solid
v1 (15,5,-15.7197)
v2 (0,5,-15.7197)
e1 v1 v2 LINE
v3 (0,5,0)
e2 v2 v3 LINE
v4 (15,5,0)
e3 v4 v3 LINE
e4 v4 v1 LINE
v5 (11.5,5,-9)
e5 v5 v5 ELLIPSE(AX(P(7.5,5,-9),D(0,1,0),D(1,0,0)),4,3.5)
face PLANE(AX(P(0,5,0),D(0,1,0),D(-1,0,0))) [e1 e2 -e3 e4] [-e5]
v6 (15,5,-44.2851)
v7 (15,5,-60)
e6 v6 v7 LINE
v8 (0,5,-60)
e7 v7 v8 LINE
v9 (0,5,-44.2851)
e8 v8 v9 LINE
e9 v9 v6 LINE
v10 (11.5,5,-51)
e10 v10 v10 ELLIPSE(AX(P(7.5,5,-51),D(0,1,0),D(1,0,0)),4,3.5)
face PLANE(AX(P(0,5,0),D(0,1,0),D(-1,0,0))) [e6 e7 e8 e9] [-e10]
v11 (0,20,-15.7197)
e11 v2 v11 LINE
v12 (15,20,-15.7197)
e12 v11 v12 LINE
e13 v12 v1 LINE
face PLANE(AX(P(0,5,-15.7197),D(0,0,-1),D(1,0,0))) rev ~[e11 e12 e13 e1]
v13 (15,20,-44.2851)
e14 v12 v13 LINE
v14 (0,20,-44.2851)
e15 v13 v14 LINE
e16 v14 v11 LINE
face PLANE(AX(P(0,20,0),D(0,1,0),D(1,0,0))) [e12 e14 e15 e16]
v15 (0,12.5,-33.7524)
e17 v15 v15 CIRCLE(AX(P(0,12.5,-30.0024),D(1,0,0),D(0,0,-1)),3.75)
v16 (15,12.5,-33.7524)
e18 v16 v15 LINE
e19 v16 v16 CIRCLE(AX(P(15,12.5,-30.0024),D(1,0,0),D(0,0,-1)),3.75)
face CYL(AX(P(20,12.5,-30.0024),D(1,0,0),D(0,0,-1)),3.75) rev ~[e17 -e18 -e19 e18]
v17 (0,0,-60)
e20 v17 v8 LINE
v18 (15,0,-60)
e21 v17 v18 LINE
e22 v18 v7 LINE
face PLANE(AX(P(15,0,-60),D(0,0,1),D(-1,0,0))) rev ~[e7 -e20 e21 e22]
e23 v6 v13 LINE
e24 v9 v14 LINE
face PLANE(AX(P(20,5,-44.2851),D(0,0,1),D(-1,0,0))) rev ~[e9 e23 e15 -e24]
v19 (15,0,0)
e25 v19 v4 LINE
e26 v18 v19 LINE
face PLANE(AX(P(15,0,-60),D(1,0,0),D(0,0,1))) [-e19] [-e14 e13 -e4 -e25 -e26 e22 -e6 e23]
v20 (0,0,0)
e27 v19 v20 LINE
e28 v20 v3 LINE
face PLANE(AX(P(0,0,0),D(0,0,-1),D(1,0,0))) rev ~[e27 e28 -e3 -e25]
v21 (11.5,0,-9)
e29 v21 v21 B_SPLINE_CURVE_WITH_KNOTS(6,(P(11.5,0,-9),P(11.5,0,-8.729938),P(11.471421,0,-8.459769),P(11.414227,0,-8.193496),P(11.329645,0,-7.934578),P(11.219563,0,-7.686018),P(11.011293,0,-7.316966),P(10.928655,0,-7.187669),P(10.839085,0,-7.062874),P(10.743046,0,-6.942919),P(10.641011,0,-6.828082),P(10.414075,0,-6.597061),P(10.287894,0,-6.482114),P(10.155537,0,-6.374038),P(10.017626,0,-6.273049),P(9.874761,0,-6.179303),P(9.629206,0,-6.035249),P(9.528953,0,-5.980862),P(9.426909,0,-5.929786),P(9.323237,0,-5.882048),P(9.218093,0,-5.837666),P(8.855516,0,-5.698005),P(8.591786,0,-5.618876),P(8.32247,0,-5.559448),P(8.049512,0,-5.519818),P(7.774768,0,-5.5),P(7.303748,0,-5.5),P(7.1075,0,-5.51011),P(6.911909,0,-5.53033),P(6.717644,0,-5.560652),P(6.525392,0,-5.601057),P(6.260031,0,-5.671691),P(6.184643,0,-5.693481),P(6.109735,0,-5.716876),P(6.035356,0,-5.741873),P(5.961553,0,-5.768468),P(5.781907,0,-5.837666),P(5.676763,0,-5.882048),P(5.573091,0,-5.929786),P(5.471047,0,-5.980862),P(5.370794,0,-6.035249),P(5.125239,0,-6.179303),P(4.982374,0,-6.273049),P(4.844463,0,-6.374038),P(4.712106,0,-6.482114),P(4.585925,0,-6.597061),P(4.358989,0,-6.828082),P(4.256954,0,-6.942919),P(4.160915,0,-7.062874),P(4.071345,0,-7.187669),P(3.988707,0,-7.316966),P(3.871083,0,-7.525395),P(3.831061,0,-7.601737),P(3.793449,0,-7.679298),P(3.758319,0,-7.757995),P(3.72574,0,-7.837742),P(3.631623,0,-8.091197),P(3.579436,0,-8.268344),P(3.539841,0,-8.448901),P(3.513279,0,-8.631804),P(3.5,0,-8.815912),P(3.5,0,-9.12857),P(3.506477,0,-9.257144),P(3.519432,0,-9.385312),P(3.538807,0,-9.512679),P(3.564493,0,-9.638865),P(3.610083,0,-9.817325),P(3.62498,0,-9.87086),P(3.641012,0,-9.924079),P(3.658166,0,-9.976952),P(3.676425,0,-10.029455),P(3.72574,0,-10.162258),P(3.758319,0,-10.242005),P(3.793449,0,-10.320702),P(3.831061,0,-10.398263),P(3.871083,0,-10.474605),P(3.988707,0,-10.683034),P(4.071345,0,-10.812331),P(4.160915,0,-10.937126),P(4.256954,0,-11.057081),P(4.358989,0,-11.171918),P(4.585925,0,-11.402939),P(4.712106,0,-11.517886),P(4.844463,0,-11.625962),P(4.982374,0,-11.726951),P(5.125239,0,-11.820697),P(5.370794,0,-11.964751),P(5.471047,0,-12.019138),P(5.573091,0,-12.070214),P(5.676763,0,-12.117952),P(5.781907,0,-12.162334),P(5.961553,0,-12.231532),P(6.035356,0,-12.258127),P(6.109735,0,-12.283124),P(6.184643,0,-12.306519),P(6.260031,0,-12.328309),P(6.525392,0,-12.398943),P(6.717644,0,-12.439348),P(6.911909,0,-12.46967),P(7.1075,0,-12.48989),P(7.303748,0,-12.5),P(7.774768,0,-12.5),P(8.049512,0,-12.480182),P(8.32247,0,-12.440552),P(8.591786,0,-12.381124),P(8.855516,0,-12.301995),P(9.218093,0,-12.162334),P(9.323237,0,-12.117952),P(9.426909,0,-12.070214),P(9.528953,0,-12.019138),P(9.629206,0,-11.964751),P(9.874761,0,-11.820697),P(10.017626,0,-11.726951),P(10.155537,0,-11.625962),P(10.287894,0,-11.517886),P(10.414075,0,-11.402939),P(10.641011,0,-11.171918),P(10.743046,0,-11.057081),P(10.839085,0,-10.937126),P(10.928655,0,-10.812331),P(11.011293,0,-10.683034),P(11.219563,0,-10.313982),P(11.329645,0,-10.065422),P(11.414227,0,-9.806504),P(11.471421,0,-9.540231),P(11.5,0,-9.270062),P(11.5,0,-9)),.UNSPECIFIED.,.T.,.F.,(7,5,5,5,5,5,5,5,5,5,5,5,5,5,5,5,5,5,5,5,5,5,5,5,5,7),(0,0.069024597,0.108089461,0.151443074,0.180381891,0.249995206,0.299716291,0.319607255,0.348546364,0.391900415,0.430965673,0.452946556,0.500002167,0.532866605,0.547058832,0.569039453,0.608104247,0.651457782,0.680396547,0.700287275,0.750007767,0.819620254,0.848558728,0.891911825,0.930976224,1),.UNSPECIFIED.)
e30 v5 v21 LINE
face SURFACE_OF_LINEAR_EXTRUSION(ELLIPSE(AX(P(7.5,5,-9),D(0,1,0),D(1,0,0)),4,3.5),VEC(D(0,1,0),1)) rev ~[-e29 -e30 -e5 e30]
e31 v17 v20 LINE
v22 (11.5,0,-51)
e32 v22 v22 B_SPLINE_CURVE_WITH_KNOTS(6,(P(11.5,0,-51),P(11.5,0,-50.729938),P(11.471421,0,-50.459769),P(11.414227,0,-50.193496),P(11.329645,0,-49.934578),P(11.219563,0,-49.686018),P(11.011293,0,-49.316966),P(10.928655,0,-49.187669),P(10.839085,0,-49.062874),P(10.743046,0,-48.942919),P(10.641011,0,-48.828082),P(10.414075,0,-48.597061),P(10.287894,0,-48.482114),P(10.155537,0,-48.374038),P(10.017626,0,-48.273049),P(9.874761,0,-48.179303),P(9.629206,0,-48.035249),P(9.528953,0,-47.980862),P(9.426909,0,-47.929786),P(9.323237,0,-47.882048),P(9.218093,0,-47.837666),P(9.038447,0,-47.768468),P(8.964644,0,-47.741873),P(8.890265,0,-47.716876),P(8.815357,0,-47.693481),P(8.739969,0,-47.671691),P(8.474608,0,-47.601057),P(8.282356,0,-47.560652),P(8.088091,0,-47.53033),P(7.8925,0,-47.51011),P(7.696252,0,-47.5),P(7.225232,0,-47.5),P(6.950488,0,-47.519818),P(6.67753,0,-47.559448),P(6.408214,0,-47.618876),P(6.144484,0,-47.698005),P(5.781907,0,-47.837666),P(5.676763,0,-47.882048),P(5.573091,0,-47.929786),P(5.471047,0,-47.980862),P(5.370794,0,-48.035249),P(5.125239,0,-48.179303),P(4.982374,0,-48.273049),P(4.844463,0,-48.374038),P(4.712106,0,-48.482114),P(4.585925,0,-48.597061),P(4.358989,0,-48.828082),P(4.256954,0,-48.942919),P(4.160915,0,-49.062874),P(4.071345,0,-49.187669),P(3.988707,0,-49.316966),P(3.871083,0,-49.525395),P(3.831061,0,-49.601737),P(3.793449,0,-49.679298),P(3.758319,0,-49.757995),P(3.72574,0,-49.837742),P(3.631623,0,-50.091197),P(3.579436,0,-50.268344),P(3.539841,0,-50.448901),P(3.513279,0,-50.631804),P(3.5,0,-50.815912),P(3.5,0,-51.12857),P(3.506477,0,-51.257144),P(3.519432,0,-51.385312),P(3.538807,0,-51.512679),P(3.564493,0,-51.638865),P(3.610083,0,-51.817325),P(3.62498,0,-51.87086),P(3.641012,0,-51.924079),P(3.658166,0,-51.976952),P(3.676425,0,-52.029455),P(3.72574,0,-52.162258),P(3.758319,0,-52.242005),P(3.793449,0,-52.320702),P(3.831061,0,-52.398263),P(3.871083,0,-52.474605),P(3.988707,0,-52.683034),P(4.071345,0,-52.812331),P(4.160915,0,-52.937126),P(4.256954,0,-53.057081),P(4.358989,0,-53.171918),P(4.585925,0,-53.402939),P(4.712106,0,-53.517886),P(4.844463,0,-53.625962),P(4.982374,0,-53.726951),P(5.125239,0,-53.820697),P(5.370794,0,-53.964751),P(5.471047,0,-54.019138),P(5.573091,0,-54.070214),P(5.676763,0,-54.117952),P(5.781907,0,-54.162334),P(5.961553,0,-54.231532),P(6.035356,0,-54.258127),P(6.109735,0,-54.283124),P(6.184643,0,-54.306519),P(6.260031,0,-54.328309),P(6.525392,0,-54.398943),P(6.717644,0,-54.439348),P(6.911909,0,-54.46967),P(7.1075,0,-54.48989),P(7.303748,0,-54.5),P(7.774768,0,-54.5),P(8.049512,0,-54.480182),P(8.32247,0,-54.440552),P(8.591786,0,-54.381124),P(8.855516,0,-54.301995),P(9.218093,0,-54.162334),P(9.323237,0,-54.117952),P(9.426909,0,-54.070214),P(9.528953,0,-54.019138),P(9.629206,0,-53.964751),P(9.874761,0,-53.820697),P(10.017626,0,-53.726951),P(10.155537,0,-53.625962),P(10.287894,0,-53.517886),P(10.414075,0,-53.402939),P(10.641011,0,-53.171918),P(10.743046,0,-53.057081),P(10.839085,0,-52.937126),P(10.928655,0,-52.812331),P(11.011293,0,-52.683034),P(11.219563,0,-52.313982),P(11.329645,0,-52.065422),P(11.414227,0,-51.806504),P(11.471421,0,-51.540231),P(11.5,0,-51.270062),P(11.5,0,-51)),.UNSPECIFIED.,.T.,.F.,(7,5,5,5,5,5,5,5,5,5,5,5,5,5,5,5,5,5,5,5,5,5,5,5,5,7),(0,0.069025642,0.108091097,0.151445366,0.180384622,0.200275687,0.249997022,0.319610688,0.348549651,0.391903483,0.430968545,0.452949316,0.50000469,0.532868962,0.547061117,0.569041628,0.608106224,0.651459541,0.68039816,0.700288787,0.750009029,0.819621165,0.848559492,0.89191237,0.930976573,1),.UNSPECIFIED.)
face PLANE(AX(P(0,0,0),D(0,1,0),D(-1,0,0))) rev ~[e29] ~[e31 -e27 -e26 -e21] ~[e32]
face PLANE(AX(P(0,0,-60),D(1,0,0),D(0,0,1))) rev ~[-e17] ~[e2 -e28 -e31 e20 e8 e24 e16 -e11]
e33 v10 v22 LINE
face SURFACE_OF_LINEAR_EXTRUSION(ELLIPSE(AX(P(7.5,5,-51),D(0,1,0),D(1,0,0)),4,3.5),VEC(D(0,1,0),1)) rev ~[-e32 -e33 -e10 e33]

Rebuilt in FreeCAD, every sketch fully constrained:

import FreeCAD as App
import Part
import Sketcher


def add_polygon(sketch, points):
    """Adds a closed chain of lines whose ends are joined by coincident constraints."""
    first, n = sketch.GeometryCount, len(points)
    for a, b in zip(points, points[1:] + points[:1]):
        sketch.addGeometry(Part.LineSegment(App.Vector(*a, 0), App.Vector(*b, 0)), False)
    for i in range(n):
        sketch.addConstraint(Sketcher.Constraint("Coincident", first + i, 2, first + (i + 1) % n, 1))

doc = App.newDocument("Part")
body = doc.addObject("PartDesign::Body", "Body")

sketch1 = doc.addObject("Sketcher::SketchObject", "Sketch")
body.addObject(sketch1)
sketch1.AttachmentSupport = (doc.XZ_Plane, [""])
sketch1.MapMode = "FlatFace"
add_polygon(sketch1, [(0, -60), (0, 0), (20, 0), (20, -60)])
sketch1.addConstraint([
    Sketcher.Constraint("Vertical", 0),
    Sketcher.Constraint("Horizontal", 1),
    Sketcher.Constraint("Vertical", 2),
    Sketcher.Constraint("Horizontal", 3),
    Sketcher.Constraint("Coincident", 0, 2, -1, 1),
    Sketcher.Constraint("DistanceX", 1, 1, 1, 2, 20.0),
    Sketcher.Constraint("DistanceY", 0, 1, 0, 2, 60.0),
])
pad1 = doc.addObject("PartDesign::Pad", "Pad")
body.addObject(pad1)
pad1.Profile = sketch1
pad1.Length = 5
pad1.Reversed = True

sketch2 = doc.addObject("Sketcher::SketchObject", "Sketch001")
body.addObject(sketch2)
sketch2.AttachmentSupport = (doc.XZ_Plane, [""])
sketch2.MapMode = "FlatFace"
sketch2.AttachmentOffset = App.Placement(App.Vector(0, 0, -5), App.Rotation())
add_polygon(sketch2, [(20, -44.2851), (0, -44.2851), (0, -15.7197), (20, -15.7197)])
sketch2.addConstraint([
    Sketcher.Constraint("Horizontal", 0),
    Sketcher.Constraint("Vertical", 1),
    Sketcher.Constraint("Horizontal", 2),
    Sketcher.Constraint("Vertical", 3),
    Sketcher.Constraint("PointOnObject", 0, 2, -2),
    Sketcher.Constraint("DistanceX", 0, 2, 0, 1, 20.0),
    Sketcher.Constraint("DistanceY", 1, 1, 1, 2, 28.5654),
    Sketcher.Constraint("DistanceY", 0, 2, -1, 1, 44.285),
])
pad2 = doc.addObject("PartDesign::Pad", "Pad001")
body.addObject(pad2)
pad2.Profile = sketch2
pad2.Length = 15
pad2.Reversed = True

sketch3 = doc.addObject("Sketcher::SketchObject", "Sketch002")
body.addObject(sketch3)
sketch3.AttachmentSupport = (doc.YZ_Plane, [""])
sketch3.MapMode = "FlatFace"
sketch3.AttachmentOffset = App.Placement(App.Vector(0, 0, 20), App.Rotation())
sketch3.addGeometry(Part.Circle(App.Vector(12.5, -30.0024, 0), App.Vector(0, 0, 1), 3.75), False)
sketch3.addConstraint([
    Sketcher.Constraint("Diameter", 0, 7.5),
    Sketcher.Constraint("DistanceX", -1, 1, 0, 3, 12.5),
    Sketcher.Constraint("DistanceY", 0, 3, -1, 1, 30.0024),
])
pocket1 = doc.addObject("PartDesign::Pocket", "Pocket")
body.addObject(pocket1)
pocket1.Profile = sketch3
pocket1.Length = 65.5

sketch4 = doc.addObject("Sketcher::SketchObject", "Sketch003")
body.addObject(sketch4)
sketch4.AttachmentSupport = (doc.XZ_Plane, [""])
sketch4.MapMode = "FlatFace"
add_polygon(sketch4, [(0, -60), (0, 0), (15, 0), (15, -60)])
sketch4.addConstraint([
    Sketcher.Constraint("Vertical", 0),
    Sketcher.Constraint("Horizontal", 1),
    Sketcher.Constraint("Vertical", 2),
    Sketcher.Constraint("Horizontal", 3),
    Sketcher.Constraint("Coincident", 0, 2, -1, 1),
    Sketcher.Constraint("DistanceX", 1, 1, 1, 2, 15.0),
    Sketcher.Constraint("DistanceY", 0, 1, 0, 2, 60.0),
])
pad3 = doc.addObject("PartDesign::Pad", "Pad002")
body.addObject(pad3)
pad3.Profile = sketch4
pad3.Length = 5
pad3.Reversed = True

sketch5 = doc.addObject("Sketcher::SketchObject", "Sketch004")
body.addObject(sketch5)
sketch5.AttachmentSupport = (doc.XZ_Plane, [""])
sketch5.MapMode = "FlatFace"
add_polygon(sketch5, [(15, -60), (15, 0), (20, 0), (20, -60)])
sketch5.addConstraint([
    Sketcher.Constraint("Vertical", 0),
    Sketcher.Constraint("Horizontal", 1),
    Sketcher.Constraint("Vertical", 2),
    Sketcher.Constraint("Horizontal", 3),
    Sketcher.Constraint("PointOnObject", 0, 2, -1),
    Sketcher.Constraint("DistanceY", 0, 1, 0, 2, 60.0),
    Sketcher.Constraint("DistanceX", -1, 1, 0, 2, 15.0),
    Sketcher.Constraint("DistanceX", -1, 1, 1, 2, 20.0),
])
pocket2 = doc.addObject("PartDesign::Pocket", "Pocket001")
body.addObject(pocket2)
pocket2.Profile = sketch5
pocket2.Length = 22.5

sketch6 = doc.addObject("Sketcher::SketchObject", "Sketch005")
body.addObject(sketch6)
sketch6.AttachmentSupport = (doc.XZ_Plane, [""])
sketch6.MapMode = "FlatFace"
sketch6.AttachmentOffset = App.Placement(App.Vector(0, 0, -5), App.Rotation())
sketch6.addGeometry([
    Part.Ellipse(App.Vector(11.5, -51, 0), App.Vector(7.5, -47.5, 0), App.Vector(7.5, -51, 0)),
    Part.Ellipse(App.Vector(11.5, -9, 0), App.Vector(7.5, -5.5, 0), App.Vector(7.5, -9, 0)),
], False)
sketch6.addConstraint([
    Sketcher.Constraint("Block", 0),
    Sketcher.Constraint("Block", 1),
])
pocket3 = doc.addObject("PartDesign::Pocket", "Pocket002")
body.addObject(pocket3)
pocket3.Profile = sketch6
pocket3.Length = 10
pocket3.Reversed = True

doc.recompute()
